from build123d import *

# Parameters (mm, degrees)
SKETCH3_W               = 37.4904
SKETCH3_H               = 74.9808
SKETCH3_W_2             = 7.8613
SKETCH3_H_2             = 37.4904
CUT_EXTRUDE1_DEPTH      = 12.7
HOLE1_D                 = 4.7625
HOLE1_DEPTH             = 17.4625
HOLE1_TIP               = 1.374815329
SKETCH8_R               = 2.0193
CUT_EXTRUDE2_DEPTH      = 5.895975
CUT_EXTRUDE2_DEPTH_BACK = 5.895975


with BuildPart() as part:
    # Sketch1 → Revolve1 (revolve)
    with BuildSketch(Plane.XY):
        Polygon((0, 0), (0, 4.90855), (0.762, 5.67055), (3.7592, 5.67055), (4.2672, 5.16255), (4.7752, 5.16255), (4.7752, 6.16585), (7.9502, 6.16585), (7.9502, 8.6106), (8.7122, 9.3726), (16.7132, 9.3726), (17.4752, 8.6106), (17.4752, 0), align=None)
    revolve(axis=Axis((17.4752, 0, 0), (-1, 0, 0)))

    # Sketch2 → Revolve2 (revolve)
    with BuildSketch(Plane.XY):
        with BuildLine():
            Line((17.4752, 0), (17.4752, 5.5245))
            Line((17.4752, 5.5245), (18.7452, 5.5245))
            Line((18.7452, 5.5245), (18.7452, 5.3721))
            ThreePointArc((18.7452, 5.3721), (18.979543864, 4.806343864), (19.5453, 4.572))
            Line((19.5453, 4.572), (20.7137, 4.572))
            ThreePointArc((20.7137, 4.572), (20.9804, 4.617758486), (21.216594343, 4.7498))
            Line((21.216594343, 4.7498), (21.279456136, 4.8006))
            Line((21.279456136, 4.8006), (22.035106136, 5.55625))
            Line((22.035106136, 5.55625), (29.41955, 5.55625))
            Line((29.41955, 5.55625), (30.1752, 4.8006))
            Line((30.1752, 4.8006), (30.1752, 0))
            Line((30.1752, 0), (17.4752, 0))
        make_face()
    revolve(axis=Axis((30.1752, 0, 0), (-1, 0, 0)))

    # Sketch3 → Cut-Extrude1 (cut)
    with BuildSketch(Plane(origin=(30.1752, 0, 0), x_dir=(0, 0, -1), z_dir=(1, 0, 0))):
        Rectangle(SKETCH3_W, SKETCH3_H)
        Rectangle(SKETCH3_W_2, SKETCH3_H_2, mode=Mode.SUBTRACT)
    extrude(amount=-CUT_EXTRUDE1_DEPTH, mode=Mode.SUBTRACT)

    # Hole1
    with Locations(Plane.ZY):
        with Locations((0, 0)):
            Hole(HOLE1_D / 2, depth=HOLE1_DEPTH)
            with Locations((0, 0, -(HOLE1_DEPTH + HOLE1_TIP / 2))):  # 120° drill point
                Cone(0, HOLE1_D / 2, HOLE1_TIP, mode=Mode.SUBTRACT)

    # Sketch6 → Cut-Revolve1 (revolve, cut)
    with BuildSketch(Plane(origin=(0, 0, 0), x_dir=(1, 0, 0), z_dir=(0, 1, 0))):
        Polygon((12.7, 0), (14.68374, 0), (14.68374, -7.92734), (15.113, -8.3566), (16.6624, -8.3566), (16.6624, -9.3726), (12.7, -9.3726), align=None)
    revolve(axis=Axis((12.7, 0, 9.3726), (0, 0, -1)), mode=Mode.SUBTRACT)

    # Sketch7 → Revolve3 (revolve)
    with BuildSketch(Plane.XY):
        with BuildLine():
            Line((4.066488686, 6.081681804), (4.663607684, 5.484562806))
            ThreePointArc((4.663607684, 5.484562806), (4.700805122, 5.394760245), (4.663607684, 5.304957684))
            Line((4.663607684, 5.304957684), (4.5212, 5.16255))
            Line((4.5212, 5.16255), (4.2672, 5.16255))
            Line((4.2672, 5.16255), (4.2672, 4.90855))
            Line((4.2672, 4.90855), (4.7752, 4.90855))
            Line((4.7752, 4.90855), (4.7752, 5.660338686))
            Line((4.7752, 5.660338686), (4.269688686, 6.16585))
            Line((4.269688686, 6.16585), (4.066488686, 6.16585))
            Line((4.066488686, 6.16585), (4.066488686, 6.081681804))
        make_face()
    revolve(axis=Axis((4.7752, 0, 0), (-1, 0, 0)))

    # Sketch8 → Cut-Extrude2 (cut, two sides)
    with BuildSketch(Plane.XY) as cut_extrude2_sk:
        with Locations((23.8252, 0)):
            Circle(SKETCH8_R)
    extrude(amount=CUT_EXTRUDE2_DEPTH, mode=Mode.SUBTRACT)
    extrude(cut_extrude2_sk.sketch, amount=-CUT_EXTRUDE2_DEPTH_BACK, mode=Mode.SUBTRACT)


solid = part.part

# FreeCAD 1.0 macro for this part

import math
import FreeCAD as App
import Part
import Sketcher
Q = App.Units.Quantity

doc = App.newDocument("Part")
params = doc.addObject("Spreadsheet::Sheet", "Params")
for row, (alias, value) in enumerate([
    ("sketch1_width", "0.02 in"),
    ("sketch1_width2", "0.688 in"),
    ("sketch1_width3", "0.315 in"),
    ("sketch1_width4", "0.125 in"),
    ("sketch1_width5", "0.118 in"),
    ("revolution_angle", "360 deg"),
    ("sketch2_width", "0.5 in"),
    ("sketch2_width2", "0.05 in"),
    ("sketch2_width3", "0.046 in"),
    ("sketch2_height", "0.189 in"),
    ("sketch2_height2", "0.006 in"),
    ("revolution2_angle", "360 deg"),
    ("sketch3_width", "2.952 in"),
    ("sketch3_width2", "1.476 in"),
    ("pocket1_length", "0.5 in"),
    ("sketch4_diameter", "0.1875 in"),
    ("hole_diameter", "0.1875 in"),
    ("hole_depth", "0.6875 in"),
    ("sketch5_height", "0.04 in"),
    ("sketch5_width", "0.156 in"),
    ("sketch5_width2", "0.061 in"),
    ("sketch5_height2", "0.369 in"),
    ("groove_angle", "360 deg"),
    ("sketch6_radius", "0.005 in"),
    ("sketch6_width", "0.01 in"),
    ("sketch6_width2", "0.02 in"),
    ("sketch6_width3", "0.008 in"),
    ("revolution3_angle", "360 deg"),
    ("sketch7_diameter", "0.159 in"),
], start=1):
    params.set(f"A{row}", alias)
    params.set(f"B{row}", "=" + value)
    params.setAlias(f"B{row}", alias)

body = doc.addObject("PartDesign::Body", "Body")

sketch1 = body.newObject("Sketcher::SketchObject", "Sketch")
sketch1.AttachmentSupport = (doc.getObject("XY_Plane"), [""])
sketch1.MapMode = "FlatFace"
sketch1.addGeometry([
    Part.LineSegment(App.Vector(0, 4.9, 0), App.Vector(0, 0, 0)),
    Part.LineSegment(App.Vector(0, 0, 0), App.Vector(17.5, 0, 0)),
    Part.LineSegment(App.Vector(17.5, 0, 0), App.Vector(17.5, 8.6, 0)),
    Part.LineSegment(App.Vector(17.5, 8.6, 0), App.Vector(16.7, 9.4, 0)),
    Part.LineSegment(App.Vector(16.7, 9.4, 0), App.Vector(8.7, 9.4, 0)),
    Part.LineSegment(App.Vector(8.7, 9.4, 0), App.Vector(8, 8.6, 0)),
    Part.LineSegment(App.Vector(8, 8.6, 0), App.Vector(8, 6.2, 0)),
    Part.LineSegment(App.Vector(8, 6.2, 0), App.Vector(4.8, 6.2, 0)),
    Part.LineSegment(App.Vector(4.8, 6.2, 0), App.Vector(4.8, 5.2, 0)),
    Part.LineSegment(App.Vector(4.8, 5.2, 0), App.Vector(4.3, 5.2, 0)),
    Part.LineSegment(App.Vector(4.3, 5.2, 0), App.Vector(3.8, 5.7, 0)),
    Part.LineSegment(App.Vector(3.8, 5.7, 0), App.Vector(0.8, 5.7, 0)),
    Part.LineSegment(App.Vector(0.8, 5.7, 0), App.Vector(0, 4.9, 0)),
], False)
sketch1.addConstraint([
    Sketcher.Constraint("Coincident", 0, 2, 1, 1),
    Sketcher.Constraint("Coincident", 1, 2, 2, 1),
    Sketcher.Constraint("Coincident", 2, 2, 3, 1),
    Sketcher.Constraint("Coincident", 3, 2, 4, 1),
    Sketcher.Constraint("Coincident", 4, 2, 5, 1),
    Sketcher.Constraint("Coincident", 5, 2, 6, 1),
    Sketcher.Constraint("Coincident", 6, 2, 7, 1),
    Sketcher.Constraint("Coincident", 7, 2, 8, 1),
    Sketcher.Constraint("Coincident", 8, 2, 9, 1),
    Sketcher.Constraint("Coincident", 9, 2, 10, 1),
    Sketcher.Constraint("Coincident", 10, 2, 11, 1),
    Sketcher.Constraint("Coincident", 11, 2, 12, 1),
    Sketcher.Constraint("Coincident", 12, 2, 0, 1),
    Sketcher.Constraint("Vertical", 0),
    Sketcher.Constraint("Horizontal", 1),
    Sketcher.Constraint("Vertical", 2),
    Sketcher.Constraint("Horizontal", 4),
    Sketcher.Constraint("Vertical", 6),
    Sketcher.Constraint("Horizontal", 7),
    Sketcher.Constraint("Vertical", 8),
    Sketcher.Constraint("Horizontal", 9),
    Sketcher.Constraint("Horizontal", 11),
    Sketcher.Constraint("Coincident", 0, 2, -1, 1),
    Sketcher.Constraint("Perpendicular", 3, 5),
    Sketcher.Constraint("Perpendicular", 5, 10),
    Sketcher.Constraint("Perpendicular", 10, 12),
    Sketcher.Constraint("Horizontal", 2, 2, 5, 2),
    Sketcher.Constraint("Equal", 3, 5),
    Sketcher.Constraint("Equal", 5, 12),
    Sketcher.Constraint("DistanceX", 9, 2, 9, 1, Q("0.02 in")),
    Sketcher.Constraint("DistanceX", 1, 1, 1, 2, Q("0.688 in")),
    Sketcher.Constraint("DistanceX", 4, 2, 4, 1, Q("0.315 in")),
    Sketcher.Constraint("DistanceX", 7, 2, 7, 1, Q("0.125 in")),
    Sketcher.Constraint("DistanceX", 11, 2, 11, 1, Q("0.118 in")),
    Sketcher.Constraint("DistanceY", 2, 1, 2, 2, Q("0.339 in")),
    Sketcher.Constraint("DistanceX", -1, 1, 11, 2, Q("0.03 in")),
    Sketcher.Constraint("DistanceY", 8, 2, 8, 1, Q("0.0395 in")),
    Sketcher.Constraint("DistanceY", 0, 2, 0, 1, Q("4.90855 mm")),
])
sketch1.setExpression("Constraints[29]", "Params.sketch1_width")
sketch1.setExpression("Constraints[30]", "Params.sketch1_width2")
sketch1.setExpression("Constraints[31]", "Params.sketch1_width3")
sketch1.setExpression("Constraints[32]", "Params.sketch1_width4")
sketch1.setExpression("Constraints[33]", "Params.sketch1_width5")
revolution = body.newObject("PartDesign::Revolution", "Revolution")
revolution.Profile = sketch1
revolution.ReferenceAxis = (sketch1, ["H_Axis"])
revolution.setExpression("Angle", "Params.revolution_angle")

sketch2 = body.newObject("Sketcher::SketchObject", "Sketch001")
sketch2.AttachmentSupport = (doc.getObject("XY_Plane"), [""])
sketch2.MapMode = "FlatFace"
sketch2.addGeometry([
    Part.LineSegment(App.Vector(17.48, 5.52, 0), App.Vector(17.48, 0, 0)),
    Part.LineSegment(App.Vector(17.48, 0, 0), App.Vector(30.18, 0, 0)),
    Part.LineSegment(App.Vector(30.18, 0, 0), App.Vector(30.18, 4.8, 0)),
    Part.LineSegment(App.Vector(30.18, 4.8, 0), App.Vector(29.42, 5.56, 0)),
    Part.LineSegment(App.Vector(29.42, 5.56, 0), App.Vector(22.04, 5.56, 0)),
    Part.LineSegment(App.Vector(22.04, 5.56, 0), App.Vector(21.28, 4.8, 0)),
    Part.LineSegment(App.Vector(21.28, 4.8, 0), App.Vector(21.22, 4.75, 0)),
    Part.ArcOfCircle(Part.Circle(App.Vector(20.71, 5.37, 0), App.Vector(0, 0, 1), 0.8), math.radians(-90), math.radians(-51)),
    Part.LineSegment(App.Vector(20.71, 4.57, 0), App.Vector(19.55, 4.57, 0)),
    Part.ArcOfCircle(Part.Circle(App.Vector(19.55, 5.37, 0), App.Vector(0, 0, 1), 0.8), math.radians(180), math.radians(270)),
    Part.LineSegment(App.Vector(18.75, 5.37, 0), App.Vector(18.75, 5.52, 0)),
    Part.LineSegment(App.Vector(18.75, 5.52, 0), App.Vector(17.48, 5.52, 0)),
], False)
sketch2.addConstraint([
    Sketcher.Constraint("Coincident", 0, 2, 1, 1),
    Sketcher.Constraint("Coincident", 1, 2, 2, 1),
    Sketcher.Constraint("Coincident", 2, 2, 3, 1),
    Sketcher.Constraint("Coincident", 3, 2, 4, 1),
    Sketcher.Constraint("Coincident", 4, 2, 5, 1),
    Sketcher.Constraint("Coincident", 5, 2, 6, 1),
    Sketcher.Constraint("Tangent", 6, 2, 7, 2),
    Sketcher.Constraint("Tangent", 7, 1, 8, 1),
    Sketcher.Constraint("Tangent", 8, 2, 9, 2),
    Sketcher.Constraint("Tangent", 9, 1, 10, 1),
    Sketcher.Constraint("Coincident", 10, 2, 11, 1),
    Sketcher.Constraint("Coincident", 11, 2, 0, 1),
    Sketcher.Constraint("Vertical", 0),
    Sketcher.Constraint("Horizontal", 1),
    Sketcher.Constraint("Vertical", 2),
    Sketcher.Constraint("Horizontal", 4),
    Sketcher.Constraint("Horizontal", 8),
    Sketcher.Constraint("Vertical", 10),
    Sketcher.Constraint("Horizontal", 11),
    Sketcher.Constraint("Equal", 7, 9),
    Sketcher.Constraint("PointOnObject", 0, 2, -1),
    Sketcher.Constraint("Perpendicular", 3, 5),
    Sketcher.Constraint("Horizontal", 2, 2, 5, 2),
    Sketcher.Constraint("Equal", 3, 5),
    Sketcher.Constraint("DistanceX", 1, 1, 1, 2, Q("0.5 in")),
    Sketcher.Constraint("DistanceX", 11, 2, 11, 1, Q("0.05 in")),
    Sketcher.Constraint("Radius", 7, Q("0.0315 in")),
    Sketcher.Constraint("DistanceX", 8, 2, 8, 1, Q("0.046 in")),
    Sketcher.Constraint("DistanceY", 2, 1, 2, 2, Q("0.189 in")),
    Sketcher.Constraint("DistanceY", 10, 1, 10, 2, Q("0.006 in")),
    Sketcher.Constraint("DistanceY", -1, 1, 7, 1, Q("0.18 in")),
    Sketcher.Constraint("DistanceX", -1, 1, 0, 2, Q("0.688 in")),
    Sketcher.Constraint("DistanceY", -1, 1, 3, 2, Q("0.21875 in")),
    Sketcher.Constraint("DistanceY", -1, 1, 6, 2, Q("0.187 in")),
])
sketch2.setExpression("Constraints[24]", "Params.sketch2_width")
sketch2.setExpression("Constraints[25]", "Params.sketch2_width2")
sketch2.setExpression("Constraints[27]", "Params.sketch2_width3")
sketch2.setExpression("Constraints[28]", "Params.sketch2_height")
sketch2.setExpression("Constraints[29]", "Params.sketch2_height2")
revolution2 = body.newObject("PartDesign::Revolution", "Revolution001")
revolution2.Profile = sketch2
revolution2.ReferenceAxis = (sketch2, ["H_Axis"])
revolution2.setExpression("Angle", "Params.revolution2_angle")

sketch3 = body.newObject("Sketcher::SketchObject", "Sketch002")
sketch3.AttachmentSupport = (doc.getObject("YZ_Plane"), [""])
sketch3.MapMode = "FlatFace"
sketch3.AttachmentOffset = App.Placement(App.Vector(0, 0, 1.188 * 25.4), App.Rotation())
sketch3.addGeometry([
    Part.LineSegment(App.Vector(37, 19, 0), App.Vector(-37, 19, 0)),
    Part.LineSegment(App.Vector(-37, 19, 0), App.Vector(-37, -19, 0)),
    Part.LineSegment(App.Vector(-37, -19, 0), App.Vector(37, -19, 0)),
    Part.LineSegment(App.Vector(37, -19, 0), App.Vector(37, 19, 0)),
    Part.LineSegment(App.Vector(-19, -4, 0), App.Vector(-19, 4, 0)),
    Part.LineSegment(App.Vector(-19, 4, 0), App.Vector(19, 4, 0)),
    Part.LineSegment(App.Vector(19, 4, 0), App.Vector(19, -4, 0)),
    Part.LineSegment(App.Vector(19, -4, 0), App.Vector(-19, -4, 0)),
], False)
sketch3.addConstraint([
    Sketcher.Constraint("Coincident", 0, 2, 1, 1),
    Sketcher.Constraint("Coincident", 1, 2, 2, 1),
    Sketcher.Constraint("Coincident", 2, 2, 3, 1),
    Sketcher.Constraint("Coincident", 3, 2, 0, 1),
    Sketcher.Constraint("Coincident", 4, 2, 5, 1),
    Sketcher.Constraint("Coincident", 5, 2, 6, 1),
    Sketcher.Constraint("Coincident", 6, 2, 7, 1),
    Sketcher.Constraint("Coincident", 7, 2, 4, 1),
    Sketcher.Constraint("Horizontal", 0),
    Sketcher.Constraint("Vertical", 1),
    Sketcher.Constraint("Horizontal", 2),
    Sketcher.Constraint("Vertical", 3),
    Sketcher.Constraint("Vertical", 4),
    Sketcher.Constraint("Horizontal", 5),
    Sketcher.Constraint("Vertical", 6),
    Sketcher.Constraint("Horizontal", 7),
    Sketcher.Constraint("Symmetric", 0, 2, 2, 2, -1, 1),
    Sketcher.Constraint("Symmetric", 4, 2, 6, 2, -1, 1),
    Sketcher.Constraint("Equal", 7, 1),
    Sketcher.Constraint("DistanceX", 0, 2, 0, 1, Q("2.952 in")),
    Sketcher.Constraint("DistanceX", 5, 1, 5, 2, Q("1.476 in")),
    Sketcher.Constraint("DistanceY", 4, 1, 4, 2, Q("0.3095 in")),
])
sketch3.setExpression("Constraints[19]", "Params.sketch3_width")
sketch3.setExpression("Constraints[20]", "Params.sketch3_width2")
pocket1 = body.newObject("PartDesign::Pocket", "Pocket")
pocket1.Profile = sketch3
pocket1.setExpression("Length", "Params.pocket1_length")

sketch4 = body.newObject("Sketcher::SketchObject", "Sketch003")
sketch4.AttachmentSupport = (doc.getObject("YZ_Plane"), [""])
sketch4.MapMode = "FlatFace"
sketch4.addGeometry(Part.Circle(App.Vector(0, 0, 0), App.Vector(0, 0, 1), 2.4), False)
sketch4.addConstraint([
    Sketcher.Constraint("Coincident", 0, 3, -1, 1),
    Sketcher.Constraint("Diameter", 0, Q("0.1875 in")),
])
sketch4.setExpression("Constraints[1]", "Params.sketch4_diameter")
doc.recompute()
hole = body.newObject("PartDesign::Hole", "Hole")
hole.Profile = sketch4
hole.ThreadType = "None"
hole.setExpression("Diameter", "Params.hole_diameter")
hole.DepthType = "Dimension"
hole.setExpression("Depth", "Params.hole_depth")
hole.DrillPoint = "Angled"
hole.DrillPointAngle = 120
hole.Reversed = True

sketch5 = body.newObject("Sketcher::SketchObject", "Sketch004")
sketch5.AttachmentSupport = (doc.getObject("XZ_Plane"), [""])
sketch5.MapMode = "FlatFace"
sketch5.addGeometry([
    Part.LineSegment(App.Vector(14.7, 0, 0), App.Vector(12.7, 0, 0)),
    Part.LineSegment(App.Vector(12.7, 0, 0), App.Vector(12.7, 9.4, 0)),
    Part.LineSegment(App.Vector(12.7, 9.4, 0), App.Vector(16.7, 9.4, 0)),
    Part.LineSegment(App.Vector(16.7, 9.4, 0), App.Vector(16.7, 8.4, 0)),
    Part.LineSegment(App.Vector(16.7, 8.4, 0), App.Vector(15.1, 8.4, 0)),
    Part.LineSegment(App.Vector(15.1, 8.4, 0), App.Vector(14.7, 7.9, 0)),
    Part.LineSegment(App.Vector(14.7, 7.9, 0), App.Vector(14.7, 0, 0)),
], False)
sketch5.addGeometry(Part.LineSegment(App.Vector(12.7, 9.4, 0), App.Vector(12.7, 0, 0)), True)
sketch5.addConstraint([
    Sketcher.Constraint("Coincident", 0, 2, 1, 1),
    Sketcher.Constraint("Coincident", 1, 2, 2, 1),
    Sketcher.Constraint("Coincident", 2, 2, 3, 1),
    Sketcher.Constraint("Coincident", 3, 2, 4, 1),
    Sketcher.Constraint("Coincident", 4, 2, 5, 1),
    Sketcher.Constraint("Coincident", 5, 2, 6, 1),
    Sketcher.Constraint("Coincident", 6, 2, 0, 1),
    Sketcher.Constraint("Horizontal", 0),
    Sketcher.Constraint("Vertical", 1),
    Sketcher.Constraint("Horizontal", 2),
    Sketcher.Constraint("Vertical", 3),
    Sketcher.Constraint("Horizontal", 4),
    Sketcher.Constraint("Vertical", 6),
    Sketcher.Constraint("Vertical", 7),
    Sketcher.Constraint("Coincident", 7, 1, 1, 2),
    Sketcher.Constraint("PointOnObject", 0, 2, -1),
    Sketcher.Constraint("PointOnObject", 7, 2, -1),
    Sketcher.Constraint("Angle", 5, Q("-135 deg")),
    Sketcher.Constraint("DistanceY", 3, 2, 3, 1, Q("0.04 in")),
    Sketcher.Constraint("DistanceX", -1, 1, 0, 2, Q("0.5 in")),
    Sketcher.Constraint("DistanceX", 2, 1, 2, 2, Q("0.156 in")),
    Sketcher.Constraint("DistanceX", 4, 2, 4, 1, Q("0.061 in")),
    Sketcher.Constraint("DistanceY", 1, 1, 1, 2, Q("0.369 in")),
    Sketcher.Constraint("DistanceX", 0, 2, 0, 1, Q("0.0781 in")),
])
sketch5.setExpression("Constraints[18]", "Params.sketch5_height")
sketch5.setExpression("Constraints[20]", "Params.sketch5_width")
sketch5.setExpression("Constraints[21]", "Params.sketch5_width2")
sketch5.setExpression("Constraints[22]", "Params.sketch5_height2")
groove = body.newObject("PartDesign::Groove", "Groove")
groove.Profile = sketch5
groove.ReferenceAxis = (sketch5, ["Axis0"])
groove.setExpression("Angle", "Params.groove_angle")

sketch6 = body.newObject("Sketcher::SketchObject", "Sketch005")
sketch6.AttachmentSupport = (doc.getObject("XY_Plane"), [""])
sketch6.MapMode = "FlatFace"
sketch6.addGeometry([
    Part.LineSegment(App.Vector(4.07, 6.08, 0), App.Vector(4.66, 5.48, 0)),
    Part.ArcOfCircle(Part.Circle(App.Vector(4.57, 5.39, 0), App.Vector(0, 0, 1), 0.13), math.radians(-45), math.radians(45)),
    Part.LineSegment(App.Vector(4.66, 5.3, 0), App.Vector(4.52, 5.16, 0)),
    Part.LineSegment(App.Vector(4.52, 5.16, 0), App.Vector(4.27, 5.16, 0)),
    Part.LineSegment(App.Vector(4.27, 5.16, 0), App.Vector(4.27, 4.91, 0)),
    Part.LineSegment(App.Vector(4.27, 4.91, 0), App.Vector(4.78, 4.91, 0)),
    Part.LineSegment(App.Vector(4.78, 4.91, 0), App.Vector(4.78, 5.66, 0)),
    Part.LineSegment(App.Vector(4.78, 5.66, 0), App.Vector(4.27, 6.17, 0)),
    Part.LineSegment(App.Vector(4.27, 6.17, 0), App.Vector(4.07, 6.17, 0)),
    Part.LineSegment(App.Vector(4.07, 6.17, 0), App.Vector(4.07, 6.08, 0)),
], False)
sketch6.addConstraint([
    Sketcher.Constraint("Tangent", 0, 2, 1, 2),
    Sketcher.Constraint("Tangent", 1, 1, 2, 1),
    Sketcher.Constraint("Coincident", 2, 2, 3, 1),
    Sketcher.Constraint("Coincident", 3, 2, 4, 1),
    Sketcher.Constraint("Coincident", 4, 2, 5, 1),
    Sketcher.Constraint("Coincident", 5, 2, 6, 1),
    Sketcher.Constraint("Coincident", 6, 2, 7, 1),
    Sketcher.Constraint("Coincident", 7, 2, 8, 1),
    Sketcher.Constraint("Coincident", 8, 2, 9, 1),
    Sketcher.Constraint("Coincident", 9, 2, 0, 1),
    Sketcher.Constraint("Horizontal", 3),
    Sketcher.Constraint("Vertical", 4),
    Sketcher.Constraint("Horizontal", 5),
    Sketcher.Constraint("Vertical", 6),
    Sketcher.Constraint("Horizontal", 8),
    Sketcher.Constraint("Vertical", 9),
    Sketcher.Constraint("Perpendicular", 0, 2),
    Sketcher.Constraint("Perpendicular", 2, 7),
    Sketcher.Constraint("Vertical", 0, 2, 1, 1),
    Sketcher.Constraint("Equal", 3, 4),
    Sketcher.Constraint("Radius", 1, Q("0.005 in")),
    Sketcher.Constraint("DistanceX", 3, 2, 3, 1, Q("0.01 in")),
    Sketcher.Constraint("DistanceX", 5, 1, 5, 2, Q("0.02 in")),
    Sketcher.Constraint("DistanceX", 8, 2, 8, 1, Q("0.008 in")),
    Sketcher.Constraint("DistanceX", -1, 1, 2, 2, Q("0.178 in")),
    Sketcher.Constraint("DistanceY", 3, 2, 7, 2, Q("0.0395 in")),
    Sketcher.Constraint("Distance", 7, Q("0.714901 mm")),
    Sketcher.Constraint("DistanceY", 9, 2, 9, 1, Q("0.084168 mm")),
    Sketcher.Constraint("DistanceY", -1, 1, 1, 3, Q("5.39476 mm")),
])
sketch6.setExpression("Constraints[20]", "Params.sketch6_radius")
sketch6.setExpression("Constraints[21]", "Params.sketch6_width")
sketch6.setExpression("Constraints[22]", "Params.sketch6_width2")
sketch6.setExpression("Constraints[23]", "Params.sketch6_width3")
revolution3 = body.newObject("PartDesign::Revolution", "Revolution002")
revolution3.Profile = sketch6
revolution3.ReferenceAxis = (sketch6, ["H_Axis"])
revolution3.setExpression("Angle", "Params.revolution3_angle")

sketch7 = body.newObject("Sketcher::SketchObject", "Sketch006")
sketch7.AttachmentSupport = (doc.getObject("XY_Plane"), [""])
sketch7.MapMode = "FlatFace"
sketch7.addGeometry(Part.Circle(App.Vector(23.8, 0, 0), App.Vector(0, 0, 1), 2), False)
sketch7.addConstraint([
    Sketcher.Constraint("PointOnObject", 0, 3, -1),
    Sketcher.Constraint("Diameter", 0, Q("0.159 in")),
    Sketcher.Constraint("DistanceX", -1, 1, 0, 3, Q("0.938 in")),
])
sketch7.setExpression("Constraints[1]", "Params.sketch7_diameter")
pocket2 = body.newObject("PartDesign::Pocket", "Pocket001")
pocket2.Profile = sketch7
pocket2.Type = "ThroughAll"
pocket2.Midplane = True

doc.recompute()
